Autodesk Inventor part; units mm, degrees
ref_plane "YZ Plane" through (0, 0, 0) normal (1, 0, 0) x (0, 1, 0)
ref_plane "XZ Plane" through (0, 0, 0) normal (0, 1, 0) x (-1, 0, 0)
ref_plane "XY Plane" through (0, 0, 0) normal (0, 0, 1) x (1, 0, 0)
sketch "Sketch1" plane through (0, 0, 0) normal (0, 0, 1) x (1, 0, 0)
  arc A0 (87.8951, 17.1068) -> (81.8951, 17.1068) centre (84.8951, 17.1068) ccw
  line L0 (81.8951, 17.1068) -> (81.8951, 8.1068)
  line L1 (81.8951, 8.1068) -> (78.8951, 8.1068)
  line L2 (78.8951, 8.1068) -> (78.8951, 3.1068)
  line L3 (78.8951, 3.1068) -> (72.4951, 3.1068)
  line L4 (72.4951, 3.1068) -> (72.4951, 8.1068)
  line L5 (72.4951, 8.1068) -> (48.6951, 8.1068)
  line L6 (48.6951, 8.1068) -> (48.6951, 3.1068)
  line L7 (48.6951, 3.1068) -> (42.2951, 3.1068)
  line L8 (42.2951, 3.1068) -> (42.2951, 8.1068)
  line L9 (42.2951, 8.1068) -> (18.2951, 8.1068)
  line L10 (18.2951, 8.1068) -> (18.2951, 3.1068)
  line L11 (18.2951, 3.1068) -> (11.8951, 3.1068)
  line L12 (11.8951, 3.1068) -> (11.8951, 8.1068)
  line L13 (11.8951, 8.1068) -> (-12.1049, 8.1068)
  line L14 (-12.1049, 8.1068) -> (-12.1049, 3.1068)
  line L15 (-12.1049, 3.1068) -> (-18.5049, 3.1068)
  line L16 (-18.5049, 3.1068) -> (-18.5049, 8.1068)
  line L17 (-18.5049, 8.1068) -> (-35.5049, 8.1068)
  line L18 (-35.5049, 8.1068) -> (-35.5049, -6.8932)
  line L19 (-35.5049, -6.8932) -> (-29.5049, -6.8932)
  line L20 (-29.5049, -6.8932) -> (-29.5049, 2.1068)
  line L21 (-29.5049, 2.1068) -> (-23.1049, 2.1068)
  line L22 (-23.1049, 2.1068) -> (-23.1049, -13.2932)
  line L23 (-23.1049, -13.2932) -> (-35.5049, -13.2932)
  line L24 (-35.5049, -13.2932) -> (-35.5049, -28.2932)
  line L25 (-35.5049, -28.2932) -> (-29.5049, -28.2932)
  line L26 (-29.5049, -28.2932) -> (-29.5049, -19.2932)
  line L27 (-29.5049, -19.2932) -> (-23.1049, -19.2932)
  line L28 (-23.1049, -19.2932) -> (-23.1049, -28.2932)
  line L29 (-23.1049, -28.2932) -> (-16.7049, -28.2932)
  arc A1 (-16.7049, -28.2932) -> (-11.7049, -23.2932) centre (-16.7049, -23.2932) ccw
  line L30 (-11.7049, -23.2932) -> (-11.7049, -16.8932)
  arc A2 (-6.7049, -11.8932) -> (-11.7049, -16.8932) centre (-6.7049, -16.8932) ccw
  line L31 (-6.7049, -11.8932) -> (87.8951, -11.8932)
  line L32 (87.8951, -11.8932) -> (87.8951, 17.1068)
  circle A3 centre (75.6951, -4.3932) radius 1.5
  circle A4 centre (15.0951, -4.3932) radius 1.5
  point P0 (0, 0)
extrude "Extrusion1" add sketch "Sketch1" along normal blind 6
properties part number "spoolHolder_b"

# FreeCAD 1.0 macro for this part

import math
import FreeCAD as App
import Part
import Sketcher
from FreeCAD import Vector

doc = App.newDocument("Part")
body = doc.addObject("PartDesign::Body", "Body")

# Sketch on XY plane
sketch1 = body.newObject("Sketcher::SketchObject", "Sketch")
sketch1.AttachmentSupport = (doc.getObject("XY_Plane"), [""])
sketch1.MapMode = "FlatFace"
sketch1.addGeometry([
    Part.LineSegment(Vector(87.8951, -11.8932, 0), Vector(87.8951, 17.1068, 0)),  # 0
    Part.ArcOfCircle(Part.Circle(Vector(84.8951, 17.1068, 0), Vector(0, 0, 1), 3), math.radians(0), math.radians(180)),  # 1
    Part.LineSegment(Vector(81.8951, 17.1068, 0), Vector(81.8951, 8.1068, 0)),  # 2
    Part.LineSegment(Vector(81.8951, 8.1068, 0), Vector(78.8951, 8.1068, 0)),  # 3
    Part.LineSegment(Vector(78.8951, 8.1068, 0), Vector(78.8951, 3.1068, 0)),  # 4
    Part.LineSegment(Vector(78.8951, 3.1068, 0), Vector(72.4951, 3.1068, 0)),  # 5
    Part.LineSegment(Vector(72.4951, 3.1068, 0), Vector(72.4951, 8.1068, 0)),  # 6
    Part.LineSegment(Vector(72.4951, 8.1068, 0), Vector(48.6951, 8.1068, 0)),  # 7
    Part.LineSegment(Vector(48.6951, 8.1068, 0), Vector(48.6951, 3.1068, 0)),  # 8
    Part.LineSegment(Vector(48.6951, 3.1068, 0), Vector(42.2951, 3.1068, 0)),  # 9
    Part.LineSegment(Vector(42.2951, 3.1068, 0), Vector(42.2951, 8.1068, 0)),  # 10
    Part.LineSegment(Vector(42.2951, 8.1068, 0), Vector(18.2951, 8.1068, 0)),  # 11
    Part.LineSegment(Vector(18.2951, 8.1068, 0), Vector(18.2951, 3.1068, 0)),  # 12
    Part.LineSegment(Vector(18.2951, 3.1068, 0), Vector(11.8951, 3.1068, 0)),  # 13
    Part.LineSegment(Vector(11.8951, 3.1068, 0), Vector(11.8951, 8.1068, 0)),  # 14
    Part.LineSegment(Vector(11.8951, 8.1068, 0), Vector(-12.1049, 8.1068, 0)),  # 15
    Part.LineSegment(Vector(-12.1049, 8.1068, 0), Vector(-12.1049, 3.1068, 0)),  # 16
    Part.LineSegment(Vector(-12.1049, 3.1068, 0), Vector(-18.5049, 3.1068, 0)),  # 17
    Part.LineSegment(Vector(-18.5049, 3.1068, 0), Vector(-18.5049, 8.1068, 0)),  # 18
    Part.LineSegment(Vector(-18.5049, 8.1068, 0), Vector(-35.5049, 8.1068, 0)),  # 19
    Part.LineSegment(Vector(-35.5049, 8.1068, 0), Vector(-35.5049, -6.8932, 0)),  # 20
    Part.LineSegment(Vector(-35.5049, -6.8932, 0), Vector(-29.5049, -6.8932, 0)),  # 21
    Part.LineSegment(Vector(-29.5049, -6.8932, 0), Vector(-29.5049, 2.1068, 0)),  # 22
    Part.LineSegment(Vector(-29.5049, 2.1068, 0), Vector(-23.1049, 2.1068, 0)),  # 23
    Part.LineSegment(Vector(-23.1049, 2.1068, 0), Vector(-23.1049, -13.2932, 0)),  # 24
    Part.LineSegment(Vector(-23.1049, -13.2932, 0), Vector(-35.5049, -13.2932, 0)),  # 25
    Part.LineSegment(Vector(-35.5049, -13.2932, 0), Vector(-35.5049, -28.2932, 0)),  # 26
    Part.LineSegment(Vector(-35.5049, -28.2932, 0), Vector(-29.5049, -28.2932, 0)),  # 27
    Part.LineSegment(Vector(-29.5049, -28.2932, 0), Vector(-29.5049, -19.2932, 0)),  # 28
    Part.LineSegment(Vector(-29.5049, -19.2932, 0), Vector(-23.1049, -19.2932, 0)),  # 29
    Part.LineSegment(Vector(-23.1049, -19.2932, 0), Vector(-23.1049, -28.2932, 0)),  # 30
    Part.LineSegment(Vector(-23.1049, -28.2932, 0), Vector(-16.7049, -28.2932, 0)),  # 31
    Part.ArcOfCircle(Part.Circle(Vector(-16.7049, -23.2932, 0), Vector(0, 0, 1), 5), math.radians(-90), math.radians(0)),  # 32
    Part.LineSegment(Vector(-11.7049, -23.2932, 0), Vector(-11.7049, -16.8932, 0)),  # 33
    Part.ArcOfCircle(Part.Circle(Vector(-6.7049, -16.8932, 0), Vector(0, 0, 1), 5), math.radians(90), math.radians(180)),  # 34
    Part.LineSegment(Vector(-6.7049, -11.8932, 0), Vector(87.8951, -11.8932, 0)),  # 35
    Part.Circle(Vector(15.0951, -4.3932, 0), Vector(0, 0, 1), 1.5),  # 36
    Part.Circle(Vector(75.6951, -4.3932, 0), Vector(0, 0, 1), 1.5),  # 37
], False)
sketch1.addConstraint([
    Sketcher.Constraint("Tangent", 0, 2, 1, 1),
    Sketcher.Constraint("Tangent", 1, 2, 2, 1),
    Sketcher.Constraint("Coincident", 2, 2, 3, 1),
    Sketcher.Constraint("Coincident", 3, 2, 4, 1),
    Sketcher.Constraint("Coincident", 4, 2, 5, 1),
    Sketcher.Constraint("Coincident", 5, 2, 6, 1),
    Sketcher.Constraint("Coincident", 6, 2, 7, 1),
    Sketcher.Constraint("Coincident", 7, 2, 8, 1),
    Sketcher.Constraint("Coincident", 8, 2, 9, 1),
    Sketcher.Constraint("Coincident", 9, 2, 10, 1),
    Sketcher.Constraint("Coincident", 10, 2, 11, 1),
    Sketcher.Constraint("Coincident", 11, 2, 12, 1),
    Sketcher.Constraint("Coincident", 12, 2, 13, 1),
    Sketcher.Constraint("Coincident", 13, 2, 14, 1),
    Sketcher.Constraint("Coincident", 14, 2, 15, 1),
    Sketcher.Constraint("Coincident", 15, 2, 16, 1),
    Sketcher.Constraint("Coincident", 16, 2, 17, 1),
    Sketcher.Constraint("Coincident", 17, 2, 18, 1),
    Sketcher.Constraint("Coincident", 18, 2, 19, 1),
    Sketcher.Constraint("Coincident", 19, 2, 20, 1),
    Sketcher.Constraint("Coincident", 20, 2, 21, 1),
    Sketcher.Constraint("Coincident", 21, 2, 22, 1),
    Sketcher.Constraint("Coincident", 22, 2, 23, 1),
    Sketcher.Constraint("Coincident", 23, 2, 24, 1),
    Sketcher.Constraint("Coincident", 24, 2, 25, 1),
    Sketcher.Constraint("Coincident", 25, 2, 26, 1),
    Sketcher.Constraint("Coincident", 26, 2, 27, 1),
    Sketcher.Constraint("Coincident", 27, 2, 28, 1),
    Sketcher.Constraint("Coincident", 28, 2, 29, 1),
    Sketcher.Constraint("Coincident", 29, 2, 30, 1),
    Sketcher.Constraint("Coincident", 30, 2, 31, 1),
    Sketcher.Constraint("Tangent", 31, 2, 32, 1),
    Sketcher.Constraint("Tangent", 32, 2, 33, 1),
    Sketcher.Constraint("Tangent", 33, 2, 34, 2),
    Sketcher.Constraint("Tangent", 34, 1, 35, 1),
    Sketcher.Constraint("Coincident", 35, 2, 0, 1),
    Sketcher.Constraint("Vertical", 0),
    Sketcher.Constraint("Vertical", 2),
    Sketcher.Constraint("Horizontal", 3),
    Sketcher.Constraint("Vertical", 4),
    Sketcher.Constraint("Horizontal", 5),
    Sketcher.Constraint("Vertical", 6),
    Sketcher.Constraint("Horizontal", 7),
    Sketcher.Constraint("Vertical", 8),
    Sketcher.Constraint("Horizontal", 9),
    Sketcher.Constraint("Vertical", 10),
    Sketcher.Constraint("Horizontal", 11),
    Sketcher.Constraint("Vertical", 12),
    Sketcher.Constraint("Horizontal", 13),
    Sketcher.Constraint("Vertical", 14),
    Sketcher.Constraint("Horizontal", 15),
    Sketcher.Constraint("Vertical", 16),
    Sketcher.Constraint("Horizontal", 17),
    Sketcher.Constraint("Vertical", 18),
    Sketcher.Constraint("Horizontal", 19),
    Sketcher.Constraint("Vertical", 20),
    Sketcher.Constraint("Horizontal", 21),
    Sketcher.Constraint("Vertical", 22),
    Sketcher.Constraint("Horizontal", 23),
    Sketcher.Constraint("Vertical", 24),
    Sketcher.Constraint("Horizontal", 25),
    Sketcher.Constraint("Vertical", 26),
    Sketcher.Constraint("Horizontal", 27),
    Sketcher.Constraint("Vertical", 28),
    Sketcher.Constraint("Horizontal", 29),
    Sketcher.Constraint("Vertical", 30),
    Sketcher.Constraint("Horizontal", 31),
    Sketcher.Constraint("Vertical", 33),
    Sketcher.Constraint("Horizontal", 35),
    Sketcher.Constraint("Equal", 32, 34),
    Sketcher.Constraint("Equal", 36, 37),
    Sketcher.Constraint("Horizontal", 36, 3, 37, 3),
    Sketcher.Constraint("Horizontal", 3, 2, 6, 2),
    Sketcher.Constraint("Horizontal", 5, 2, 8, 2),
    Sketcher.Constraint("Horizontal", 7, 2, 10, 2),
    Sketcher.Constraint("Horizontal", 9, 2, 12, 2),
    Sketcher.Constraint("Horizontal", 11, 2, 14, 2),
    Sketcher.Constraint("Horizontal", 13, 2, 16, 2),
    Sketcher.Constraint("Horizontal", 15, 2, 18, 2),
    Sketcher.Constraint("Horizontal", 27, 2, 30, 2),
    Sketcher.Constraint("Vertical", 20, 2, 25, 2),
    Sketcher.Constraint("Vertical", 22, 2, 27, 2),
    Sketcher.Constraint("Vertical", 24, 2, 29, 2),
    Sketcher.Constraint("Equal", 5, 9),
    Sketcher.Constraint("Equal", 9, 13),
    Sketcher.Constraint("Equal", 11, 15),
    Sketcher.Constraint("Equal", 13, 17),
    Sketcher.Constraint("Equal", 17, 23),
    Sketcher.Constraint("Equal", 29, 31),
    Sketcher.Constraint("Equal", 2, 22),
    Sketcher.Constraint("Equal", 20, 26),
    Sketcher.Constraint("Equal", 22, 28),
    Sketcher.Constraint("Equal", 31, 33),
    Sketcher.Constraint("Diameter", 36, 3.0),
    Sketcher.Constraint("Radius", 1, 3.0),
    Sketcher.Constraint("Radius", 32, 5.0),
    Sketcher.Constraint("DistanceX", 3, 2, 3, 1, 3.0),
    Sketcher.Constraint("DistanceX", 11, 2, 11, 1, 24.0),
    Sketcher.Constraint("DistanceX", 19, 2, 19, 1, 17.0),
    Sketcher.Constraint("DistanceX", 21, 1, 21, 2, 6.0),
    Sketcher.Constraint("DistanceY", 0, 1, 0, 2, 29.0),
    Sketcher.Constraint("DistanceY", 2, 2, 2, 1, 9.0),
    Sketcher.Constraint("DistanceY", 4, 2, 4, 1, 5.0),
    Sketcher.Constraint("DistanceY", 20, 2, 20, 1, 15.0),
    Sketcher.Constraint("DistanceX", 5, 2, 5, 1, 6.4),
    Sketcher.Constraint("DistanceX", 7, 2, 7, 1, 23.8),
    Sketcher.Constraint("DistanceX", 7, 2, 37, 3, 27.0),
    Sketcher.Constraint("DistanceX", 34, 3, 36, 3, 21.8),
    Sketcher.Constraint("DistanceY", 34, 3, 36, 3, 12.5),
    Sketcher.Constraint("DistanceX", -1, 1, 1, 3, 84.895),
    Sketcher.Constraint("DistanceY", -1, 1, 1, 3, 17.1068),
])
pad1 = body.newObject("PartDesign::Pad", "Pad")
pad1.Profile = sketch1
pad1.Length = 6

doc.recompute()
